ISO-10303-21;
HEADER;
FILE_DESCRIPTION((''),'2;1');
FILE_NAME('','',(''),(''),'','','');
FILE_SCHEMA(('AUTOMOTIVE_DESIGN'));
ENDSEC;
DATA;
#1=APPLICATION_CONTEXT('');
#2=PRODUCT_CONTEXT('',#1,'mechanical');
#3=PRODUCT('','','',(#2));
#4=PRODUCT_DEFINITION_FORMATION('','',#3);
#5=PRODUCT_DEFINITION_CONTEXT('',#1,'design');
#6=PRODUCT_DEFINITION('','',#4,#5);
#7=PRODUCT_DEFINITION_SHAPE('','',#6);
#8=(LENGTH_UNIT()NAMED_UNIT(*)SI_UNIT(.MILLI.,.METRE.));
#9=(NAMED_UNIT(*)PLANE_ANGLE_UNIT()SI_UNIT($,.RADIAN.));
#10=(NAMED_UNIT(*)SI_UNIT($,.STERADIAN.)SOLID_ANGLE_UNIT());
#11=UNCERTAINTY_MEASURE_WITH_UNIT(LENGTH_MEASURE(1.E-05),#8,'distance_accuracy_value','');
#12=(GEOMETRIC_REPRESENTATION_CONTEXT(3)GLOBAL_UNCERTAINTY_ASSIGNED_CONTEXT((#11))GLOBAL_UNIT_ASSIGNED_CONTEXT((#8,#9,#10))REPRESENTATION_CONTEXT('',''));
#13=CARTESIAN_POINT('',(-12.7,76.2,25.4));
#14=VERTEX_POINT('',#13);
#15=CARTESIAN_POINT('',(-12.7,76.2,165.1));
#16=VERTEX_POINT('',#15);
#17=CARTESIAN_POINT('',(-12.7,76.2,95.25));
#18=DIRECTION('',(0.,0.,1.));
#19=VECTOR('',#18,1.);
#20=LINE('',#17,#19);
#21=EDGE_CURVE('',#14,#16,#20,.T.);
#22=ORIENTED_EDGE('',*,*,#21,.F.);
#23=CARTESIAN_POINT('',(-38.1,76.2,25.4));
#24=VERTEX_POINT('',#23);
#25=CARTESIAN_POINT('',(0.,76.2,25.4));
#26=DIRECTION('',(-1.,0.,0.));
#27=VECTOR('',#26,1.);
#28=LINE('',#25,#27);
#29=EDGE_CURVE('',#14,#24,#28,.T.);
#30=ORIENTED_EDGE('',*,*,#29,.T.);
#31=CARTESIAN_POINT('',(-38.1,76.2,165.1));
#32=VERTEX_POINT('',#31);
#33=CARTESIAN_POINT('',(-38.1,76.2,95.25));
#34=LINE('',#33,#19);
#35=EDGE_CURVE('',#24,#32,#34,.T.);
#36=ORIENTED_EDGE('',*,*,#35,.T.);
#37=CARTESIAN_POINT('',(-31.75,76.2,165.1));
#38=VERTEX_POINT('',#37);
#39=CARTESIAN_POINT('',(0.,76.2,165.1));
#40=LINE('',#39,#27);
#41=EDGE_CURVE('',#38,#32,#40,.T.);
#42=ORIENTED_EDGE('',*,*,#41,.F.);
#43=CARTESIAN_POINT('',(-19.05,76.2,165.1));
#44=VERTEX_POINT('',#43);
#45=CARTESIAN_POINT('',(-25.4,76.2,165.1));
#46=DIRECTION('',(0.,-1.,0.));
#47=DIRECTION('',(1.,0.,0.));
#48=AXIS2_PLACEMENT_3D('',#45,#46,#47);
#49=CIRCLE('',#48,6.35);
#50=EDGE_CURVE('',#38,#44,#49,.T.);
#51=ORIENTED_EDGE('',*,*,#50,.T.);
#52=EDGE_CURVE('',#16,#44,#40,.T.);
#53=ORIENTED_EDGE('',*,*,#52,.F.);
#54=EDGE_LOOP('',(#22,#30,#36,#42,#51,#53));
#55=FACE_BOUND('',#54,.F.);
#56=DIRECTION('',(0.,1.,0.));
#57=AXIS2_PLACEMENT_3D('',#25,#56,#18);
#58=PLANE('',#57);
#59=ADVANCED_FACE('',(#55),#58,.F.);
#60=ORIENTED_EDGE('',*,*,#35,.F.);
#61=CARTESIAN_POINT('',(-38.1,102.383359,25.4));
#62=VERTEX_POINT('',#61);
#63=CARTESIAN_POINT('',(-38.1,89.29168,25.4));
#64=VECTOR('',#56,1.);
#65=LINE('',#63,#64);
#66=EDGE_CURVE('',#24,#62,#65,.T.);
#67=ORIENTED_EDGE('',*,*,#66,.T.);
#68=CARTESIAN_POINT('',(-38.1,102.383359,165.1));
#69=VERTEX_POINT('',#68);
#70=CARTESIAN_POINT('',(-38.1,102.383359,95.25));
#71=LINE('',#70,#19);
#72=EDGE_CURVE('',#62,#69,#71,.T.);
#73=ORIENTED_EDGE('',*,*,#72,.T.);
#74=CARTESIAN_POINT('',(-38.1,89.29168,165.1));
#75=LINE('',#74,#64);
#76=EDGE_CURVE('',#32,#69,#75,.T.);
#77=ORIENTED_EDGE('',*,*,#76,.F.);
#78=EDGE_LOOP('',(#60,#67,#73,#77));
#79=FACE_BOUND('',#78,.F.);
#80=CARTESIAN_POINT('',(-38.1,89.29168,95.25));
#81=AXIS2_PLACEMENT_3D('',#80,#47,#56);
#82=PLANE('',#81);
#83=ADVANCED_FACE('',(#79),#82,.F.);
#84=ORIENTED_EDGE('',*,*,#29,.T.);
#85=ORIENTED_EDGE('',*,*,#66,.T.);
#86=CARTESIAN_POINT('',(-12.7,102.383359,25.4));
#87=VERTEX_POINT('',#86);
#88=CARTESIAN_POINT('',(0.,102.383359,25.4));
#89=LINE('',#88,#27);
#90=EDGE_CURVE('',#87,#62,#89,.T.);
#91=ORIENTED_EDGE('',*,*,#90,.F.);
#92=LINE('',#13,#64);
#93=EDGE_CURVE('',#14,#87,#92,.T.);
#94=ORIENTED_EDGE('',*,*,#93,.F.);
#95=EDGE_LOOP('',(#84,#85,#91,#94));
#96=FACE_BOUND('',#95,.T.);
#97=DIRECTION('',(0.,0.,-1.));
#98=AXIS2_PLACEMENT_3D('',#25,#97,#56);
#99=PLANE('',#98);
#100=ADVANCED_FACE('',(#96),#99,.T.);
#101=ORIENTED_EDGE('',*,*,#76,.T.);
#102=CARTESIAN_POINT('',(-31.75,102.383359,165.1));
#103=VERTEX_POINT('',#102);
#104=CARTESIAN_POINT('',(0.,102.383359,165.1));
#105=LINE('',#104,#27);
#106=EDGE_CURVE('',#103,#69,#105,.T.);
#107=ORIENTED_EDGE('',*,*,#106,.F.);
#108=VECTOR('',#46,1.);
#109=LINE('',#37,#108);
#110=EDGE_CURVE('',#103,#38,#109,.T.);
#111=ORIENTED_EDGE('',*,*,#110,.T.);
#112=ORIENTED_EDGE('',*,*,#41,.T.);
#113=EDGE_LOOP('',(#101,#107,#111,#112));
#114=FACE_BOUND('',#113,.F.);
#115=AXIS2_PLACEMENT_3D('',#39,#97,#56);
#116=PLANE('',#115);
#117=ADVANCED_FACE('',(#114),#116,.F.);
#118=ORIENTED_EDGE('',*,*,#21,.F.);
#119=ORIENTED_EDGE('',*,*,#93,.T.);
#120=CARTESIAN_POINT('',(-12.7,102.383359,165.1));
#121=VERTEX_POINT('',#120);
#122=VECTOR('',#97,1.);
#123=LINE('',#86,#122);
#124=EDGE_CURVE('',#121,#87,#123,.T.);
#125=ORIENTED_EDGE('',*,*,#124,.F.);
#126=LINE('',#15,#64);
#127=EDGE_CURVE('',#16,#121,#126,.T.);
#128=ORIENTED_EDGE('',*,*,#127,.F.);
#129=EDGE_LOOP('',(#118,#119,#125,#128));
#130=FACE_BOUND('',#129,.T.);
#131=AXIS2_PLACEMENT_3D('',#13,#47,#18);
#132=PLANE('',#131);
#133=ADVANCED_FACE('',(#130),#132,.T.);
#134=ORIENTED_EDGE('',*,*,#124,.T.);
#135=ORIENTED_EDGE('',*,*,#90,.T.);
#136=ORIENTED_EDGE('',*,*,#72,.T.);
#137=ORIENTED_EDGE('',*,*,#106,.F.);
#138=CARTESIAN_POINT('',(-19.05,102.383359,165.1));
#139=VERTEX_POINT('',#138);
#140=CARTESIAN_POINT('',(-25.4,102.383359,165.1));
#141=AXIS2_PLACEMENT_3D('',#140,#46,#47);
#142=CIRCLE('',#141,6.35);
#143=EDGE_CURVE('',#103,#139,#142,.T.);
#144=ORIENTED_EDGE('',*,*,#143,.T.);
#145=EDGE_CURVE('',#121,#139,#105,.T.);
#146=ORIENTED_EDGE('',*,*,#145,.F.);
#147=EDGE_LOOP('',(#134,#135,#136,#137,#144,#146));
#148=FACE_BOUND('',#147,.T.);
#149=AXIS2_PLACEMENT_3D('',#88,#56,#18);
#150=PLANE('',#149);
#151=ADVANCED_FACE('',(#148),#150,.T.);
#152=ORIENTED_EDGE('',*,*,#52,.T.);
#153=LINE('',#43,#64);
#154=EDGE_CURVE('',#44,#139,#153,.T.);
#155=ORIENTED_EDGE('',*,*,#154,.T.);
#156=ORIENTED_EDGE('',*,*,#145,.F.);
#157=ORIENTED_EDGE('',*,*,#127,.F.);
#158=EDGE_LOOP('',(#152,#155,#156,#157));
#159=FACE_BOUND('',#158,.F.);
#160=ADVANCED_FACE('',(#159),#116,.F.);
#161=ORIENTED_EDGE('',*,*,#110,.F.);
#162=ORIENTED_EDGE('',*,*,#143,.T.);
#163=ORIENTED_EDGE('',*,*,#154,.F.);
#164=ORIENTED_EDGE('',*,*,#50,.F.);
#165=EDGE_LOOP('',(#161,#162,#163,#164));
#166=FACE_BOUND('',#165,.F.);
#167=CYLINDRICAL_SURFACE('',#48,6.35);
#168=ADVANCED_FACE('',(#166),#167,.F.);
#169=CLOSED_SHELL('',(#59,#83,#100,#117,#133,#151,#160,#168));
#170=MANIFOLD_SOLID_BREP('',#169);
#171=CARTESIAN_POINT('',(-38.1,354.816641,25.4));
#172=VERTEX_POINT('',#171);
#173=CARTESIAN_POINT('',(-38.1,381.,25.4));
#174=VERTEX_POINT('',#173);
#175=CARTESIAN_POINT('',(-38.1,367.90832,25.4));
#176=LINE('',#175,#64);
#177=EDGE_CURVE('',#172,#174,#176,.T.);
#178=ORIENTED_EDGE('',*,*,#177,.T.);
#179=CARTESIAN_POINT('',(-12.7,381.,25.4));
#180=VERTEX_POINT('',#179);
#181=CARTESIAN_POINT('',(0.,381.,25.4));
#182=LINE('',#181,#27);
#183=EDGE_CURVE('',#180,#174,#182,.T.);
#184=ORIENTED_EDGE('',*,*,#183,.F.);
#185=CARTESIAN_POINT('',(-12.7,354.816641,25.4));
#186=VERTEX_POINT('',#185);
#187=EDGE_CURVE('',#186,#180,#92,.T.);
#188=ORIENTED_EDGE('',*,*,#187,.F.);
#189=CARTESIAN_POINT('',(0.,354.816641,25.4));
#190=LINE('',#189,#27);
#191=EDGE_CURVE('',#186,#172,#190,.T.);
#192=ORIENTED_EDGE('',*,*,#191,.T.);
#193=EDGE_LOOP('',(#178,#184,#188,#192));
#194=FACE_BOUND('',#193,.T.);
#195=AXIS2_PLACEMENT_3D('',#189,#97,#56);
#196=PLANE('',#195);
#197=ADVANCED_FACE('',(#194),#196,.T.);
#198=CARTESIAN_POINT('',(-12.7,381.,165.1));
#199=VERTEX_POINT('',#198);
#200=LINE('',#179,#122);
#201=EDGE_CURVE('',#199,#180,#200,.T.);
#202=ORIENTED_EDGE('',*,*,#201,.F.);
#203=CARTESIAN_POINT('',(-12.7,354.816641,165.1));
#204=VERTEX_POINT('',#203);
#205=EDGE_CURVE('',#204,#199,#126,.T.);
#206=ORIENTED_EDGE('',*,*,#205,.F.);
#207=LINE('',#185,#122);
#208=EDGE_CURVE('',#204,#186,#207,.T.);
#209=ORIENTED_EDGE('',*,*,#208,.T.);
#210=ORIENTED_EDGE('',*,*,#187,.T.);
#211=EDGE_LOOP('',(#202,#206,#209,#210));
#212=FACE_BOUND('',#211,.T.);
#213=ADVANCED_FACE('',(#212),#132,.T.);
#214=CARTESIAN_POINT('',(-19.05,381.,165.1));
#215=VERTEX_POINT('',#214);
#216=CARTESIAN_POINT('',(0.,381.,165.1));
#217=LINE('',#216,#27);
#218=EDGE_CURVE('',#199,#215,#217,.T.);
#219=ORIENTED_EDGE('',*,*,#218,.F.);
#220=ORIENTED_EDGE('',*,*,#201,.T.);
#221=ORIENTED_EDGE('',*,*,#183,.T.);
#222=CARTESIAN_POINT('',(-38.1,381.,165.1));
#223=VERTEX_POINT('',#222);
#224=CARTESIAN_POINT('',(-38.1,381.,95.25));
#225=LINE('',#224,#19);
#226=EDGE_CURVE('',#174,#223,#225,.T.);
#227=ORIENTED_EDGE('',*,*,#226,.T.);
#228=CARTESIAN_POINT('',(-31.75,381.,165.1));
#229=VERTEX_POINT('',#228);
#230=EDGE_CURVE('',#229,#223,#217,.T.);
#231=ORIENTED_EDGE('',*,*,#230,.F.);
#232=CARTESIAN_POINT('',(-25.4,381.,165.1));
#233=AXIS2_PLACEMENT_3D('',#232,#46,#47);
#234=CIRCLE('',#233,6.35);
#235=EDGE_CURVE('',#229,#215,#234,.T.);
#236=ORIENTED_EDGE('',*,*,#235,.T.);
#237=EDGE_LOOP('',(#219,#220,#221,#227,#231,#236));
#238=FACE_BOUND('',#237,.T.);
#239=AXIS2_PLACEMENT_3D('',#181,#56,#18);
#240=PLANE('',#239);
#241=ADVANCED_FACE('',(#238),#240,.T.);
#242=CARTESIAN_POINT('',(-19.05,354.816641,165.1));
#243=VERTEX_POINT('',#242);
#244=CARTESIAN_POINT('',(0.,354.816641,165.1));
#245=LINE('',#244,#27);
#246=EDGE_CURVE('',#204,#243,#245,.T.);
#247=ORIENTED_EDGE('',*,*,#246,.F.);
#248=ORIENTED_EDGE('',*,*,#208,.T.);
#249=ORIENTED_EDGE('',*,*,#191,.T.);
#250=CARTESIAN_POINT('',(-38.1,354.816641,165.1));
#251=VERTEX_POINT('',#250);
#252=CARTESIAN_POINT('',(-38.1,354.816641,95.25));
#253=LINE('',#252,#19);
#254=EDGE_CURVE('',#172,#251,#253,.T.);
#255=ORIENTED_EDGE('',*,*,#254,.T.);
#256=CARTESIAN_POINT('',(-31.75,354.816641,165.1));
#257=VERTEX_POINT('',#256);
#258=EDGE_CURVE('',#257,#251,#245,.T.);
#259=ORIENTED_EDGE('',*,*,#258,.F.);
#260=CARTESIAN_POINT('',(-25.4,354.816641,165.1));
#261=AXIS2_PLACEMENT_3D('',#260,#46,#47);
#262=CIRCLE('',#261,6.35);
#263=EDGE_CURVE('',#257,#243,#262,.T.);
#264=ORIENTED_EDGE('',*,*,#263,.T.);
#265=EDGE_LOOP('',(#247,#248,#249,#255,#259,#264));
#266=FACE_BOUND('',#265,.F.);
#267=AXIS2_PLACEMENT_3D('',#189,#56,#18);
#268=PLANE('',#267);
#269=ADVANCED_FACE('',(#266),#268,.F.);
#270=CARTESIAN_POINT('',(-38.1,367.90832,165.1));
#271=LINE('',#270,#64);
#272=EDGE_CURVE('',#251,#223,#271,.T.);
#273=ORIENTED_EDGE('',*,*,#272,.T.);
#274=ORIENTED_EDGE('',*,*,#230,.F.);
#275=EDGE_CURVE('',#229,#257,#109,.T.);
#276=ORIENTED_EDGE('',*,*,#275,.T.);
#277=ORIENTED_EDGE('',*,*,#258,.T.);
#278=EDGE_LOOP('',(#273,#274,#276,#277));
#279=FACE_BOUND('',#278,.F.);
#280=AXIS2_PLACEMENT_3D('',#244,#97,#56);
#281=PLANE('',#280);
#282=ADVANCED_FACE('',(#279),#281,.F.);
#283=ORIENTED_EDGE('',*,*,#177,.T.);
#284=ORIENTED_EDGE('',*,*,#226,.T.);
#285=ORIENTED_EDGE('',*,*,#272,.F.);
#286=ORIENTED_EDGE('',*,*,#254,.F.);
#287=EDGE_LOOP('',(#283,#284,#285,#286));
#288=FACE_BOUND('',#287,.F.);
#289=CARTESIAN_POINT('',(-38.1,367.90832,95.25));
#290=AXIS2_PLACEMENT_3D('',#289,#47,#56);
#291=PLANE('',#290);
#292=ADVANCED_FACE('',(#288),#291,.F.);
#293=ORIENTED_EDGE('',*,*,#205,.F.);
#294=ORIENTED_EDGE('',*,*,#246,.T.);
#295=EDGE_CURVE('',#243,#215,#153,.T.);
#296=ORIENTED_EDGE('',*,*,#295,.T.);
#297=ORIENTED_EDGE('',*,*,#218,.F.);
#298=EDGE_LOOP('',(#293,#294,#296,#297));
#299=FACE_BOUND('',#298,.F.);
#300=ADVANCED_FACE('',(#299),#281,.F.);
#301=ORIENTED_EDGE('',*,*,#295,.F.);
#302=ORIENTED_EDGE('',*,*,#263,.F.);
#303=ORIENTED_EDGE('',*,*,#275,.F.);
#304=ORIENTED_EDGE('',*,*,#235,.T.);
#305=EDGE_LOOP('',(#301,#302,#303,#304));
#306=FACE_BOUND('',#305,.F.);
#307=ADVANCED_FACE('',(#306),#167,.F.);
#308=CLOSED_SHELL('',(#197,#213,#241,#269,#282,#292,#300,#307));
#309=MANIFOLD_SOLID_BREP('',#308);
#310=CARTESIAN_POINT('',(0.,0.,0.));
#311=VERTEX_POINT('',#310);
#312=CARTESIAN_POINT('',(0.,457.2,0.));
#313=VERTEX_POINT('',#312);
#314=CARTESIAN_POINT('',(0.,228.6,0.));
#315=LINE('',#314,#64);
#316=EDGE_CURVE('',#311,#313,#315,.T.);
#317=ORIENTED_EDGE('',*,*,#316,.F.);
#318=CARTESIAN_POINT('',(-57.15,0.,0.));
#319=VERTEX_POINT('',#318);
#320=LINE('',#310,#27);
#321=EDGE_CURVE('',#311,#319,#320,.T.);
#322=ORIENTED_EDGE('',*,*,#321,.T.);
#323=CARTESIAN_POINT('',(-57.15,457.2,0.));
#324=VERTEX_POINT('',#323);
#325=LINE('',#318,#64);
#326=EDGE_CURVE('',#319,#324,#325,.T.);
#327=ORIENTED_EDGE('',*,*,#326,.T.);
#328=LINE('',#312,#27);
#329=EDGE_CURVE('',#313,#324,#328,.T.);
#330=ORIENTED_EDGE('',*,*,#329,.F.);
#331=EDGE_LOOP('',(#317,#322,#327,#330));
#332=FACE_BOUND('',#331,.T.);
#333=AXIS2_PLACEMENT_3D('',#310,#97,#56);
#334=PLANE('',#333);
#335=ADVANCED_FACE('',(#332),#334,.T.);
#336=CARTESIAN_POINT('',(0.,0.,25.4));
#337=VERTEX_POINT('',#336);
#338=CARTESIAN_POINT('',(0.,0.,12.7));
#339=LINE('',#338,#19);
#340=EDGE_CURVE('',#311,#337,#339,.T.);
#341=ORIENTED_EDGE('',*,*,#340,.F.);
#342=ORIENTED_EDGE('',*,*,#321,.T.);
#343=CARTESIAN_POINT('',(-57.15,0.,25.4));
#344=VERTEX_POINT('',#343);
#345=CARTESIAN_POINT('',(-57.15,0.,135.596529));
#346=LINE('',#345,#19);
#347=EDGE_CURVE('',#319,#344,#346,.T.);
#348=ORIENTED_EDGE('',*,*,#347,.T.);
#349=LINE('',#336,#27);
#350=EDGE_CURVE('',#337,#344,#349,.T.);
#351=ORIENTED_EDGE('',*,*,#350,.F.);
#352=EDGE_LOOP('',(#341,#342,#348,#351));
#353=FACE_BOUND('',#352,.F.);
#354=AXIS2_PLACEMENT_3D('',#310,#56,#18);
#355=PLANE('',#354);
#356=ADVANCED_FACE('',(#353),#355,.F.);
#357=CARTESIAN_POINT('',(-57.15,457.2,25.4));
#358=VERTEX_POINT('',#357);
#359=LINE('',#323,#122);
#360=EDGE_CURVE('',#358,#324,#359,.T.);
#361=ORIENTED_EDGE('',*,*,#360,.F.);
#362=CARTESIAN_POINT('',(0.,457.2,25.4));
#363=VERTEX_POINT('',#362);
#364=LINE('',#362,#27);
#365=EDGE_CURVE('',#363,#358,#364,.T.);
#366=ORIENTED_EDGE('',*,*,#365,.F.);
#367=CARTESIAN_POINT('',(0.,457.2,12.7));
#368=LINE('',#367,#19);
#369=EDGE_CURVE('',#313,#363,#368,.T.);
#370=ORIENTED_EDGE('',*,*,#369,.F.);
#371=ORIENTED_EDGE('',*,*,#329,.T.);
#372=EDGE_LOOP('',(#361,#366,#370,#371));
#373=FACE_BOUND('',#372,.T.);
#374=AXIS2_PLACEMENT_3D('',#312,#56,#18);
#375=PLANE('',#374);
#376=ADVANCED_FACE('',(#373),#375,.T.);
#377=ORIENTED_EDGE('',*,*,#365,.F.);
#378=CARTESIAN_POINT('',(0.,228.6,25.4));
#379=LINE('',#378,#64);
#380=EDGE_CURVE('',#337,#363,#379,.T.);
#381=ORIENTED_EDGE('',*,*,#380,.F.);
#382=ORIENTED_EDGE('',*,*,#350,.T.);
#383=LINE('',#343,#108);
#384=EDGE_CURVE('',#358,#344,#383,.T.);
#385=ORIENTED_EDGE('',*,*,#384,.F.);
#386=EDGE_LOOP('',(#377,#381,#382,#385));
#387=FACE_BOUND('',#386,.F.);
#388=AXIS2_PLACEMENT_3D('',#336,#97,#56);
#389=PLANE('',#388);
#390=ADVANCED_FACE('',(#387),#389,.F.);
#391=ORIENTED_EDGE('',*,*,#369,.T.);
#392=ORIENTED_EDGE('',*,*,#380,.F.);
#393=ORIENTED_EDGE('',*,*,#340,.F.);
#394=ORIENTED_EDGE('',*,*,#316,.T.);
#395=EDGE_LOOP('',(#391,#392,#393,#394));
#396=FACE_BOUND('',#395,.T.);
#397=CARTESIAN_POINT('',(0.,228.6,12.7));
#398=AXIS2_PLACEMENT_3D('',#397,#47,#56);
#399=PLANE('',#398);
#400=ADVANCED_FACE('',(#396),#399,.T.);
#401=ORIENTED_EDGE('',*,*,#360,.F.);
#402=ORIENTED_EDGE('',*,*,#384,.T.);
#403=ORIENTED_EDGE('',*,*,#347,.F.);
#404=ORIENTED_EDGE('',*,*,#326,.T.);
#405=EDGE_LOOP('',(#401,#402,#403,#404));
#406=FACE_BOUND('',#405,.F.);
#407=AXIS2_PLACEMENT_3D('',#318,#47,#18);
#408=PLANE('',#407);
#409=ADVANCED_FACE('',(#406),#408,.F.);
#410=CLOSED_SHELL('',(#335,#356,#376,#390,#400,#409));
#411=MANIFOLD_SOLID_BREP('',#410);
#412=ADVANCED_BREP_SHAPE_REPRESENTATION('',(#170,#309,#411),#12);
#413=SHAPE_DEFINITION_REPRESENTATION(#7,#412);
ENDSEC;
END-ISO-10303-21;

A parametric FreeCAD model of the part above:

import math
import FreeCAD as App
import Part
import Sketcher
Q = App.Units.Quantity

doc = App.newDocument("Part")
params = doc.addObject("Spreadsheet::Sheet", "Params")
for row, (alias, value) in enumerate([
    ("sketch1_width", "18 in"),
    ("sketch1_height", "1 in"),
    ("pad1_length", "8 in"),
    ("sketch2_height", "6 in"),
    ("sketch2_width", "1.25 in"),
    ("pad2_length", "1.5 in"),
    ("pad3_length", "7.75 in"),
    ("pad3_length2", "0.25 in"),
    ("sketch4_width", "5 in"),
    ("sketch4_height", "2 in"),
    ("pocket1_length", "2 in"),
    ("sketch5_diameter", "1.75 in"),
    ("pocket2_length", "0.5 in"),
    ("pocket2_length2", "5.5 in"),
    ("sketch6_diameter", "1.5 in"),
    ("pocket3_length", "0.25 in"),
    ("sketch7_diameter", "1.5 in"),
    ("pocket4_length", "0.25 in"),
    ("sketch8_height", "5.5 in"),
    ("pad4_length", "1.5 in"),
    ("sketch9_height", "5.5 in"),
    ("pad5_length", "1.5 in"),
    ("sketch10_width", "0.5 in"),
    ("sketch10_height", "5.5 in"),
    ("pad6_length", "381.001 mm"),
    ("sketch11_diameter", "1 in"),
    ("pad7_length", "7.5 in"),
    ("pad7_length2", "1.5 in"),
    ("sketch12_height", "4 in"),
    ("sketch12_radius", "0.75 in"),
    ("sketch12_length", "4 in"),
    ("sketch12_width", "0.5 in"),
    ("sketch12_length2", "0.5 in"),
    ("pad8_length", "4.5 in"),
    ("sketch13_height", "3 in"),
    ("sketch13_height2", "3.5 in"),
    ("pad9_length", "8.25 in"),
    ("sketch14_height", "2 in"),
    ("sketch14_width", "0.375 in"),
    ("pocket5_length", "8.25 in"),
    ("sketch15_height", "0.5 in"),
    ("sketch15_height2", "1.5 in"),
    ("sketch15_length", "0.5000002 in"),
    ("sketch15_width", "0.375 in"),
    ("pocket6_length", "0.5 in"),
    ("pocket6_length2", "2.5 in"),
    ("sketch16_diameter", "0.5 in"),
    ("pad10_length", "16 in"),
    ("sketch17_width", "7 in"),
    ("pad11_length", "457.201 mm"),
], start=1):
    params.set(f"A{row}", alias)
    params.set(f"B{row}", "=" + value)
    params.setAlias(f"B{row}", alias)

body = doc.addObject("PartDesign::Body", "Body")

sketch1 = body.newObject("Sketcher::SketchObject", "Sketch")
sketch1.AttachmentSupport = (doc.getObject("YZ_Plane"), [""])
sketch1.MapMode = "FlatFace"
sketch1.addGeometry(Part.LineSegment(App.Vector(0, 25, 0), App.Vector(0, 0, 0)), False)
sketch1.addGeometry(Part.LineSegment(App.Vector(0, 0, 0), App.Vector(457, 0, 0)), False)
sketch1.addGeometry(Part.LineSegment(App.Vector(457, 0, 0), App.Vector(457, 25, 0)), False)
sketch1.addGeometry(Part.LineSegment(App.Vector(457, 25, 0), App.Vector(0, 25, 0)), False)
sketch1.addConstraint(Sketcher.Constraint("Coincident", 0, 2, 1, 1))
sketch1.addConstraint(Sketcher.Constraint("Coincident", 1, 2, 2, 1))
sketch1.addConstraint(Sketcher.Constraint("Coincident", 2, 2, 3, 1))
sketch1.addConstraint(Sketcher.Constraint("Coincident", 3, 2, 0, 1))
sketch1.addConstraint(Sketcher.Constraint("Vertical", 0))
sketch1.addConstraint(Sketcher.Constraint("Horizontal", 1))
sketch1.addConstraint(Sketcher.Constraint("Vertical", 2))
sketch1.addConstraint(Sketcher.Constraint("Horizontal", 3))
sketch1.addConstraint(Sketcher.Constraint("Coincident", 0, 2, -1, 1))
sketch1.addConstraint(Sketcher.Constraint("DistanceX", 1, 1, 1, 2, Q("18 in")))
sketch1.addConstraint(Sketcher.Constraint("DistanceY", 0, 2, 0, 1, Q("1 in")))
sketch1.setExpression("Constraints[9]", "Params.sketch1_width")
sketch1.setExpression("Constraints[10]", "Params.sketch1_height")
pad1 = body.newObject("PartDesign::Pad", "Pad")
pad1.Profile = sketch1
pad1.setExpression("Length", "Params.pad1_length")
pad1.Reversed = True

sketch2 = body.newObject("Sketcher::SketchObject", "Sketch001")
sketch2.AttachmentSupport = (doc.getObject("YZ_Plane"), [""])
sketch2.MapMode = "FlatFace"
sketch2.AttachmentOffset = App.Placement(App.Vector(0, 0, -8 * 25.4), App.Rotation())
sketch2.addGeometry(Part.LineSegment(App.Vector(331, 178, 0), App.Vector(331, 25, 0)), False)
sketch2.addGeometry(Part.LineSegment(App.Vector(331, 25, 0), App.Vector(300, 25, 0)), False)
sketch2.addGeometry(Part.LineSegment(App.Vector(300, 25, 0), App.Vector(300, 178, 0)), False)
sketch2.addGeometry(Part.LineSegment(App.Vector(300, 178, 0), App.Vector(331, 178, 0)), False)
sketch2.addGeometry(Part.LineSegment(App.Vector(173, 178, 0), App.Vector(173, 25, 0)), False)
sketch2.addGeometry(Part.LineSegment(App.Vector(173, 25, 0), App.Vector(141, 25, 0)), False)
sketch2.addGeometry(Part.LineSegment(App.Vector(141, 25, 0), App.Vector(141, 178, 0)), False)
sketch2.addGeometry(Part.LineSegment(App.Vector(141, 178, 0), App.Vector(173, 178, 0)), False)
sketch2.addConstraint(Sketcher.Constraint("Coincident", 0, 2, 1, 1))
sketch2.addConstraint(Sketcher.Constraint("Coincident", 1, 2, 2, 1))
sketch2.addConstraint(Sketcher.Constraint("Coincident", 2, 2, 3, 1))
sketch2.addConstraint(Sketcher.Constraint("Coincident", 3, 2, 0, 1))
sketch2.addConstraint(Sketcher.Constraint("Coincident", 4, 2, 5, 1))
sketch2.addConstraint(Sketcher.Constraint("Coincident", 5, 2, 6, 1))
sketch2.addConstraint(Sketcher.Constraint("Coincident", 6, 2, 7, 1))
sketch2.addConstraint(Sketcher.Constraint("Coincident", 7, 2, 4, 1))
sketch2.addConstraint(Sketcher.Constraint("Vertical", 0))
sketch2.addConstraint(Sketcher.Constraint("Horizontal", 1))
sketch2.addConstraint(Sketcher.Constraint("Vertical", 2))
sketch2.addConstraint(Sketcher.Constraint("Horizontal", 3))
sketch2.addConstraint(Sketcher.Constraint("Vertical", 4))
sketch2.addConstraint(Sketcher.Constraint("Horizontal", 5))
sketch2.addConstraint(Sketcher.Constraint("Vertical", 6))
sketch2.addConstraint(Sketcher.Constraint("Horizontal", 7))
sketch2.addConstraint(Sketcher.Constraint("Horizontal", 1, 2, 4, 2))
sketch2.addConstraint(Sketcher.Constraint("Horizontal", 3, 2, 6, 2))
sketch2.addConstraint(Sketcher.Constraint("Equal", 3, 5))
sketch2.addConstraint(Sketcher.Constraint("DistanceY", 0, 2, 0, 1, Q("6 in")))
sketch2.addConstraint(Sketcher.Constraint("DistanceY", -1, 1, 0, 2, Q("1 in")))
sketch2.addConstraint(Sketcher.Constraint("DistanceX", 4, 2, 1, 2, Q("5 in")))
sketch2.addConstraint(Sketcher.Constraint("DistanceX", 1, 2, 1, 1, Q("1.25 in")))
sketch2.addConstraint(Sketcher.Constraint("DistanceX", -1, 1, 0, 2, 331.329972))
sketch2.setExpression("Constraints[19]", "Params.sketch2_height")
sketch2.setExpression("Constraints[22]", "Params.sketch2_width")
pad2 = body.newObject("PartDesign::Pad", "Pad001")
pad2.Profile = sketch2
pad2.setExpression("Length", "Params.pad2_length")

sketch3 = body.newObject("Sketcher::SketchObject", "Sketch002")
sketch3.AttachmentSupport = (doc.getObject("XZ_Plane"), [""])
sketch3.MapMode = "FlatFace"
sketch3.AttachmentOffset = App.Placement(App.Vector(0, 0, -331.329972), App.Rotation())
sketch3.addGeometry(Part.LineSegment(App.Vector(-199, 190, 0), App.Vector(-169, 190, 0)), False)
sketch3.addGeometry(Part.LineSegment(App.Vector(-169, 190, 0), App.Vector(-155, 165, 0)), False)
sketch3.addGeometry(Part.LineSegment(App.Vector(-155, 165, 0), App.Vector(-169, 140, 0)), False)
sketch3.addGeometry(Part.LineSegment(App.Vector(-169, 140, 0), App.Vector(-199, 140, 0)), False)
sketch3.addGeometry(Part.LineSegment(App.Vector(-199, 140, 0), App.Vector(-213, 165, 0)), False)
sketch3.addGeometry(Part.LineSegment(App.Vector(-213, 165, 0), App.Vector(-199, 190, 0)), False)
sketch3.addConstraint(Sketcher.Constraint("Coincident", 0, 2, 1, 1))
sketch3.addConstraint(Sketcher.Constraint("Coincident", 1, 2, 2, 1))
sketch3.addConstraint(Sketcher.Constraint("Coincident", 2, 2, 3, 1))
sketch3.addConstraint(Sketcher.Constraint("Coincident", 3, 2, 4, 1))
sketch3.addConstraint(Sketcher.Constraint("Coincident", 4, 2, 5, 1))
sketch3.addConstraint(Sketcher.Constraint("Coincident", 5, 2, 0, 1))
sketch3.addConstraint(Sketcher.Constraint("Horizontal", 0))
sketch3.addConstraint(Sketcher.Constraint("Horizontal", 3))
sketch3.addConstraint(Sketcher.Constraint("Parallel", 1, 4))
sketch3.addConstraint(Sketcher.Constraint("Parallel", 2, 5))
sketch3.addConstraint(Sketcher.Constraint("Horizontal", 1, 2, 4, 2))
sketch3.addConstraint(Sketcher.Constraint("Vertical", 0, 2, 2, 2))
sketch3.addConstraint(Sketcher.Constraint("Vertical", 3, 2, 5, 2))
sketch3.addConstraint(Sketcher.Constraint("Angle", 1, Q("-60 deg")))
sketch3.addConstraint(Sketcher.Constraint("DistanceY", 1, 2, 0, 2, Q("1 in")))
sketch3.addConstraint(Sketcher.Constraint("DistanceY", -1, 1, 0, 2, Q("7.5 in")))
sketch3.addConstraint(Sketcher.Constraint("DistanceX", 0, 1, 0, 2, 29.329394))
sketch3.addConstraint(Sketcher.Constraint("DistanceX", 0, 2, -1, 1, 169.485303))
pad3 = body.newObject("PartDesign::Pad", "Pad002")
pad3.Profile = sketch3
pad3.Type = "TwoLengths"
pad3.setExpression("Length", "Params.pad3_length")
pad3.setExpression("Length2", "Params.pad3_length2")

sketch4 = body.newObject("Sketcher::SketchObject", "Sketch003")
sketch4.AttachmentSupport = (doc.getObject("YZ_Plane"), [""])
sketch4.MapMode = "FlatFace"
sketch4.AttachmentOffset = App.Placement(App.Vector(0, 0, -8 * 25.4), App.Rotation())
sketch4.addGeometry(Part.LineSegment(App.Vector(300, 190, 0), App.Vector(300, 140, 0)), False)
sketch4.addGeometry(Part.LineSegment(App.Vector(300, 140, 0), App.Vector(173, 140, 0)), False)
sketch4.addGeometry(Part.LineSegment(App.Vector(173, 140, 0), App.Vector(174, 190, 0)), False)
sketch4.addGeometry(Part.LineSegment(App.Vector(174, 190, 0), App.Vector(300, 190, 0)), False)
sketch4.addConstraint(Sketcher.Constraint("Coincident", 0, 2, 1, 1))
sketch4.addConstraint(Sketcher.Constraint("Coincident", 1, 2, 2, 1))
sketch4.addConstraint(Sketcher.Constraint("Coincident", 2, 2, 3, 1))
sketch4.addConstraint(Sketcher.Constraint("Coincident", 3, 2, 0, 1))
sketch4.addConstraint(Sketcher.Constraint("Vertical", 0))
sketch4.addConstraint(Sketcher.Constraint("Horizontal", 1))
sketch4.addConstraint(Sketcher.Constraint("Horizontal", 3))
sketch4.addConstraint(Sketcher.Constraint("DistanceX", 1, 2, 1, 1, Q("5 in")))
sketch4.addConstraint(Sketcher.Constraint("DistanceY", 0, 2, 0, 1, Q("2 in")))
sketch4.addConstraint(Sketcher.Constraint("DistanceY", -1, 1, 0, 2, Q("5.5 in")))
sketch4.addConstraint(Sketcher.Constraint("DistanceX", 3, 1, 3, 2, 125.894302))
sketch4.addConstraint(Sketcher.Constraint("DistanceX", -1, 1, 0, 2, 299.579972))
sketch4.setExpression("Constraints[7]", "Params.sketch4_width")
sketch4.setExpression("Constraints[8]", "Params.sketch4_height")
pocket1 = body.newObject("PartDesign::Pocket", "Pocket")
pocket1.Profile = sketch4
pocket1.setExpression("Length", "Params.pocket1_length")
pocket1.Reversed = True

sketch5 = body.newObject("Sketcher::SketchObject", "Sketch004")
sketch5.AttachmentSupport = (doc.getObject("XZ_Plane"), [""])
sketch5.MapMode = "FlatFace"
sketch5.AttachmentOffset = App.Placement(App.Vector(0, 0, -299.579972), App.Rotation())
sketch5.addGeometry(Part.Circle(App.Vector(-184, 165, 0), App.Vector(0, 0, 1), 22), False)
sketch5.addConstraint(Sketcher.Constraint("Diameter", 0, Q("1.75 in")))
sketch5.addConstraint(Sketcher.Constraint("DistanceY", -1, 1, 0, 3, Q("6.5 in")))
sketch5.addConstraint(Sketcher.Constraint("DistanceX", 0, 3, -1, 1, Q("7.25 in")))
sketch5.setExpression("Constraints[0]", "Params.sketch5_diameter")
pocket2 = body.newObject("PartDesign::Pocket", "Pocket001")
pocket2.Profile = sketch5
pocket2.Type = "TwoLengths"
pocket2.setExpression("Length", "Params.pocket2_length")
pocket2.setExpression("Length2", "Params.pocket2_length2")

sketch6 = body.newObject("Sketcher::SketchObject", "Sketch005")
sketch6.AttachmentSupport = (doc.getObject("XZ_Plane"), [""])
sketch6.MapMode = "FlatFace"
sketch6.AttachmentOffset = App.Placement(App.Vector(0, 0, -134.479972), App.Rotation())
sketch6.addGeometry(Part.Circle(App.Vector(-184, 165, 0), App.Vector(0, 0, 1), 19), False)
sketch6.addConstraint(Sketcher.Constraint("Diameter", 0, Q("1.5 in")))
sketch6.addConstraint(Sketcher.Constraint("DistanceY", -1, 1, 0, 3, Q("6.5 in")))
sketch6.addConstraint(Sketcher.Constraint("DistanceX", 0, 3, -1, 1, Q("7.25 in")))
sketch6.setExpression("Constraints[0]", "Params.sketch6_diameter")
pocket3 = body.newObject("PartDesign::Pocket", "Pocket002")
pocket3.Profile = sketch6
pocket3.setExpression("Length", "Params.pocket3_length")

sketch7 = body.newObject("Sketcher::SketchObject", "Sketch006")
sketch7.AttachmentSupport = (doc.getObject("XZ_Plane"), [""])
sketch7.MapMode = "FlatFace"
sketch7.AttachmentOffset = App.Placement(App.Vector(0, 0, -337.679972), App.Rotation())
sketch7.addGeometry(Part.Circle(App.Vector(-184, 165, 0), App.Vector(0, 0, 1), 19), False)
sketch7.addConstraint(Sketcher.Constraint("Diameter", 0, Q("1.5 in")))
sketch7.addConstraint(Sketcher.Constraint("DistanceY", -1, 1, 0, 3, Q("6.5 in")))
sketch7.addConstraint(Sketcher.Constraint("DistanceX", 0, 3, -1, 1, Q("7.25 in")))
sketch7.setExpression("Constraints[0]", "Params.sketch7_diameter")
pocket4 = body.newObject("PartDesign::Pocket", "Pocket003")
pocket4.Profile = sketch7
pocket4.setExpression("Length", "Params.pocket4_length")
pocket4.Reversed = True
body2 = doc.addObject("PartDesign::Body", "Body001")

sketch8 = body2.newObject("Sketcher::SketchObject", "Sketch007")
sketch8.AttachmentSupport = (doc.getObject("YZ_Plane001"), [""])
sketch8.MapMode = "FlatFace"
sketch8.addGeometry(Part.LineSegment(App.Vector(76, 165, 0), App.Vector(76, 25, 0)), False)
sketch8.addGeometry(Part.LineSegment(App.Vector(76, 25, 0), App.Vector(102, 25, 0)), False)
sketch8.addGeometry(Part.LineSegment(App.Vector(102, 25, 0), App.Vector(102, 165, 0)), False)
sketch8.addGeometry(Part.LineSegment(App.Vector(102, 165, 0), App.Vector(76, 165, 0)), False)
sketch8.addConstraint(Sketcher.Constraint("Coincident", 0, 2, 1, 1))
sketch8.addConstraint(Sketcher.Constraint("Coincident", 1, 2, 2, 1))
sketch8.addConstraint(Sketcher.Constraint("Coincident", 2, 2, 3, 1))
sketch8.addConstraint(Sketcher.Constraint("Coincident", 3, 2, 0, 1))
sketch8.addConstraint(Sketcher.Constraint("Vertical", 0))
sketch8.addConstraint(Sketcher.Constraint("Horizontal", 1))
sketch8.addConstraint(Sketcher.Constraint("Vertical", 2))
sketch8.addConstraint(Sketcher.Constraint("Horizontal", 3))
sketch8.addConstraint(Sketcher.Constraint("DistanceY", 0, 2, 0, 1, Q("5.5 in")))
sketch8.addConstraint(Sketcher.Constraint("DistanceX", -1, 1, 0, 2, Q("3 in")))
sketch8.addConstraint(Sketcher.Constraint("DistanceY", -1, 1, 0, 2, Q("1 in")))
sketch8.addConstraint(Sketcher.Constraint("DistanceX", 1, 1, 1, 2, 26.183359))
sketch8.setExpression("Constraints[8]", "Params.sketch8_height")
pad4 = body2.newObject("PartDesign::Pad", "Pad003")
pad4.Profile = sketch8
pad4.setExpression("Length", "Params.pad4_length")
pad4.Reversed = True
body3 = doc.addObject("PartDesign::Body", "Body002")

sketch9 = body3.newObject("Sketcher::SketchObject", "Sketch008")
sketch9.AttachmentSupport = (doc.getObject("YZ_Plane002"), [""])
sketch9.MapMode = "FlatFace"
sketch9.addGeometry(Part.LineSegment(App.Vector(355, 165, 0), App.Vector(355, 25, 0)), False)
sketch9.addGeometry(Part.LineSegment(App.Vector(355, 25, 0), App.Vector(381, 25, 0)), False)
sketch9.addGeometry(Part.LineSegment(App.Vector(381, 25, 0), App.Vector(381, 165, 0)), False)
sketch9.addGeometry(Part.LineSegment(App.Vector(381, 165, 0), App.Vector(355, 165, 0)), False)
sketch9.addConstraint(Sketcher.Constraint("Coincident", 0, 2, 1, 1))
sketch9.addConstraint(Sketcher.Constraint("Coincident", 1, 2, 2, 1))
sketch9.addConstraint(Sketcher.Constraint("Coincident", 2, 2, 3, 1))
sketch9.addConstraint(Sketcher.Constraint("Coincident", 3, 2, 0, 1))
sketch9.addConstraint(Sketcher.Constraint("Vertical", 0))
sketch9.addConstraint(Sketcher.Constraint("Horizontal", 1))
sketch9.addConstraint(Sketcher.Constraint("Vertical", 2))
sketch9.addConstraint(Sketcher.Constraint("Horizontal", 3))
sketch9.addConstraint(Sketcher.Constraint("DistanceY", 0, 2, 0, 1, Q("5.5 in")))
sketch9.addConstraint(Sketcher.Constraint("DistanceY", -1, 1, 0, 2, Q("1 in")))
sketch9.addConstraint(Sketcher.Constraint("DistanceX", -1, 1, 1, 2, Q("15 in")))
sketch9.addConstraint(Sketcher.Constraint("DistanceX", 1, 1, 1, 2, 26.183359))
sketch9.setExpression("Constraints[8]", "Params.sketch9_height")
pad5 = body3.newObject("PartDesign::Pad", "Pad004")
pad5.Profile = sketch9
pad5.setExpression("Length", "Params.pad5_length")
pad5.Reversed = True
body4 = doc.addObject("PartDesign::Body", "Body003")

sketch10 = body4.newObject("Sketcher::SketchObject", "Sketch009")
sketch10.AttachmentSupport = (doc.getObject("XZ_Plane003"), [""])
sketch10.MapMode = "FlatFace"
sketch10.AttachmentOffset = App.Placement(App.Vector(0, 0, -3 * 25.4), App.Rotation())
sketch10.addGeometry(Part.LineSegment(App.Vector(-13, 165, 0), App.Vector(-13, 25, 0)), False)
sketch10.addGeometry(Part.LineSegment(App.Vector(-13, 25, 0), App.Vector(0, 25, 0)), False)
sketch10.addGeometry(Part.LineSegment(App.Vector(0, 25, 0), App.Vector(0, 165, 0)), False)
sketch10.addGeometry(Part.LineSegment(App.Vector(0, 165, 0), App.Vector(-13, 165, 0)), False)
sketch10.addConstraint(Sketcher.Constraint("Coincident", 0, 2, 1, 1))
sketch10.addConstraint(Sketcher.Constraint("Coincident", 1, 2, 2, 1))
sketch10.addConstraint(Sketcher.Constraint("Coincident", 2, 2, 3, 1))
sketch10.addConstraint(Sketcher.Constraint("Coincident", 3, 2, 0, 1))
sketch10.addConstraint(Sketcher.Constraint("Vertical", 0))
sketch10.addConstraint(Sketcher.Constraint("Horizontal", 1))
sketch10.addConstraint(Sketcher.Constraint("Vertical", 2))
sketch10.addConstraint(Sketcher.Constraint("Horizontal", 3))
sketch10.addConstraint(Sketcher.Constraint("PointOnObject", 1, 2, -2))
sketch10.addConstraint(Sketcher.Constraint("DistanceX", 1, 1, 1, 2, Q("0.5 in")))
sketch10.addConstraint(Sketcher.Constraint("DistanceY", 0, 2, 0, 1, Q("5.5 in")))
sketch10.addConstraint(Sketcher.Constraint("DistanceY", -1, 1, 0, 2, Q("1 in")))
sketch10.setExpression("Constraints[9]", "Params.sketch10_width")
sketch10.setExpression("Constraints[10]", "Params.sketch10_height")
pad6 = body4.newObject("PartDesign::Pad", "Pad005")
pad6.Profile = sketch10
pad6.setExpression("Length", "Params.pad6_length")
pad6.Reversed = True
doc.recompute()

body5 = doc.addObject("PartDesign::Body", "Body004")
body5.BaseFeature = body4
boolean = body2.newObject("PartDesign::Boolean", "Boolean")
boolean.Type = "Cut"
boolean.addObjects([body5])
doc.recompute()

boolean2 = body3.newObject("PartDesign::Boolean", "Boolean001")
boolean2.Type = "Cut"
boolean2.addObjects([body4])
body6 = doc.addObject("PartDesign::Body", "Body005")

sketch11 = body6.newObject("Sketcher::SketchObject", "Sketch010")
sketch11.AttachmentSupport = (doc.getObject("XZ_Plane005"), [""])
sketch11.MapMode = "FlatFace"
sketch11.AttachmentOffset = App.Placement(App.Vector(0, 0, -159.879972), App.Rotation())
sketch11.addGeometry(Part.Circle(App.Vector(-184, 165, 0), App.Vector(0, 0, 1), 13), False)
sketch11.addConstraint(Sketcher.Constraint("Diameter", 0, Q("1 in")))
sketch11.addConstraint(Sketcher.Constraint("DistanceY", -1, 1, 0, 3, Q("6.5 in")))
sketch11.addConstraint(Sketcher.Constraint("DistanceX", 0, 3, -1, 1, Q("7.25 in")))
sketch11.setExpression("Constraints[0]", "Params.sketch11_diameter")
pad7 = body6.newObject("PartDesign::Pad", "Pad006")
pad7.Profile = sketch11
pad7.Type = "TwoLengths"
pad7.setExpression("Length", "Params.pad7_length")
pad7.setExpression("Length2", "Params.pad7_length2")
pad7.Reversed = True
body7 = doc.addObject("PartDesign::Body", "Body006")

sketch12 = body7.newObject("Sketcher::SketchObject", "Sketch011")
sketch12.AttachmentSupport = (doc.getObject("XZ_Plane006"), [""])
sketch12.MapMode = "FlatFace"
sketch12.AttachmentOffset = App.Placement(App.Vector(0, 0, -293.229972), App.Rotation())
sketch12.addGeometry(Part.ArcOfCircle(Part.Circle(App.Vector(-184, 165, 0), App.Vector(0, 0, 1), 19), math.radians(90), math.radians(270)), False)
sketch12.addGeometry(Part.LineSegment(App.Vector(-184, 146, 0), App.Vector(-75, 63, 0)), False)
sketch12.addGeometry(Part.LineSegment(App.Vector(-75, 63, 0), App.Vector(-63, 63, 0)), False)
sketch12.addGeometry(Part.LineSegment(App.Vector(-63, 63, 0), App.Vector(-63, 165, 0)), False)
sketch12.addGeometry(Part.LineSegment(App.Vector(-63, 165, 0), App.Vector(-63, 267, 0)), False)
sketch12.addGeometry(Part.LineSegment(App.Vector(-63, 267, 0), App.Vector(-75, 267, 0)), False)
sketch12.addGeometry(Part.LineSegment(App.Vector(-75, 267, 0), App.Vector(-184, 184, 0)), False)
sketch12.addConstraint(Sketcher.Constraint("Coincident", 0, 2, 1, 1))
sketch12.addConstraint(Sketcher.Constraint("Coincident", 1, 2, 2, 1))
sketch12.addConstraint(Sketcher.Constraint("Coincident", 2, 2, 3, 1))
sketch12.addConstraint(Sketcher.Constraint("Coincident", 3, 2, 4, 1))
sketch12.addConstraint(Sketcher.Constraint("Coincident", 4, 2, 5, 1))
sketch12.addConstraint(Sketcher.Constraint("Coincident", 5, 2, 6, 1))
sketch12.addConstraint(Sketcher.Constraint("Coincident", 6, 2, 0, 1))
sketch12.addConstraint(Sketcher.Constraint("Vertical", 4))
sketch12.addConstraint(Sketcher.Constraint("Horizontal", 5))
sketch12.addConstraint(Sketcher.Constraint("Perpendicular", 2, 3))
sketch12.addConstraint(Sketcher.Constraint("Vertical", 0, 3, 6, 2))
sketch12.addConstraint(Sketcher.Constraint("Equal", 1, 6))
sketch12.addConstraint(Sketcher.Constraint("DistanceY", 4, 1, 4, 2, Q("4 in")))
sketch12.addConstraint(Sketcher.Constraint("Radius", 0, Q("0.75 in")))
sketch12.addConstraint(Sketcher.Constraint("Distance", 3, Q("4 in")))
sketch12.addConstraint(Sketcher.Constraint("DistanceX", 5, 2, 5, 1, Q("0.5 in")))
sketch12.addConstraint(Sketcher.Constraint("Distance", 2, Q("0.5 in")))
sketch12.addConstraint(Sketcher.Constraint("DistanceY", -1, 1, 0, 3, Q("6.5 in")))
sketch12.addConstraint(Sketcher.Constraint("DistanceX", 0, 3, -1, 1, Q("7.25 in")))
sketch12.addConstraint(Sketcher.Constraint("DistanceX", 0, 2, -1, 1, 184.166322))
sketch12.addConstraint(Sketcher.Constraint("DistanceX", 2, 2, -1, 1, 62.706489))
sketch12.addConstraint(Sketcher.Constraint("DistanceX", 3, 2, -1, 1, 62.619439))
sketch12.setExpression("Constraints[12]", "Params.sketch12_height")
sketch12.setExpression("Constraints[13]", "Params.sketch12_radius")
sketch12.setExpression("Constraints[14]", "Params.sketch12_length")
sketch12.setExpression("Constraints[15]", "Params.sketch12_width")
sketch12.setExpression("Constraints[16]", "Params.sketch12_length2")
pad8 = body7.newObject("PartDesign::Pad", "Pad007")
pad8.Profile = sketch12
pad8.setExpression("Length", "Params.pad8_length")
body8 = doc.addObject("PartDesign::Body", "Body007")

sketch13 = body8.newObject("Sketcher::SketchObject", "Sketch012")
sketch13.AttachmentSupport = (doc.getObject("XY_Plane007"), [""])
sketch13.MapMode = "FlatFace"
sketch13.AttachmentOffset = App.Placement(App.Vector(0, 0, 266.647937), App.Rotation())
sketch13.addGeometry(Part.LineSegment(App.Vector(-72, 198, 0), App.Vector(-72, 274, 0)), False)
sketch13.addGeometry(Part.LineSegment(App.Vector(-72, 274, 0), App.Vector(-177, 281, 0)), False)
sketch13.addGeometry(Part.LineSegment(App.Vector(-177, 281, 0), App.Vector(-177, 192, 0)), False)
sketch13.addGeometry(Part.LineSegment(App.Vector(-177, 192, 0), App.Vector(-72, 198, 0)), False)
sketch13.addConstraint(Sketcher.Constraint("Coincident", 0, 2, 1, 1))
sketch13.addConstraint(Sketcher.Constraint("Coincident", 1, 2, 2, 1))
sketch13.addConstraint(Sketcher.Constraint("Coincident", 2, 2, 3, 1))
sketch13.addConstraint(Sketcher.Constraint("Coincident", 3, 2, 0, 1))
sketch13.addConstraint(Sketcher.Constraint("Vertical", 0))
sketch13.addConstraint(Sketcher.Constraint("Vertical", 2))
sketch13.addConstraint(Sketcher.Constraint("Equal", 1, 3))
sketch13.addConstraint(Sketcher.Constraint("DistanceY", 0, 1, 0, 2, Q("3 in")))
sketch13.addConstraint(Sketcher.Constraint("DistanceY", 2, 2, 2, 1, Q("3.5 in")))
sketch13.addConstraint(Sketcher.Constraint("Distance", 1, 104.885731))
sketch13.addConstraint(Sketcher.Constraint("DistanceX", 0, 2, -1, 1, 72.144439))
sketch13.addConstraint(Sketcher.Constraint("DistanceY", -1, 1, 0, 2, 274.179972))
sketch13.setExpression("Constraints[7]", "Params.sketch13_height")
sketch13.setExpression("Constraints[8]", "Params.sketch13_height2")
pad9 = body8.newObject("PartDesign::Pad", "Pad008")
pad9.Profile = sketch13
pad9.setExpression("Length", "Params.pad9_length")
pad9.Reversed = True
doc.recompute()

body9 = doc.addObject("PartDesign::Body", "Body008")
body9.BaseFeature = body8
boolean3 = body6.newObject("PartDesign::Boolean", "Boolean002")
boolean3.Type = "Cut"
boolean3.addObjects([body9])
doc.recompute()

boolean4 = body7.newObject("PartDesign::Boolean", "Boolean003")
boolean4.Type = "Cut"
boolean4.addObjects([body8])

sketch14 = body7.newObject("Sketcher::SketchObject", "Sketch013")
sketch14.AttachmentSupport = (doc.getObject("XY_Plane006"), [""])
sketch14.MapMode = "FlatFace"
sketch14.AttachmentOffset = App.Placement(App.Vector(0, 0, 266.647937), App.Rotation())
sketch14.addGeometry(Part.LineSegment(App.Vector(-72, 261, 0), App.Vector(-72, 211, 0)), False)
sketch14.addGeometry(Part.LineSegment(App.Vector(-72, 211, 0), App.Vector(-63, 211, 0)), False)
sketch14.addGeometry(Part.LineSegment(App.Vector(-63, 211, 0), App.Vector(-63, 261, 0)), False)
sketch14.addGeometry(Part.LineSegment(App.Vector(-63, 261, 0), App.Vector(-72, 261, 0)), False)
sketch14.addConstraint(Sketcher.Constraint("Coincident", 0, 2, 1, 1))
sketch14.addConstraint(Sketcher.Constraint("Coincident", 1, 2, 2, 1))
sketch14.addConstraint(Sketcher.Constraint("Coincident", 2, 2, 3, 1))
sketch14.addConstraint(Sketcher.Constraint("Coincident", 3, 2, 0, 1))
sketch14.addConstraint(Sketcher.Constraint("Vertical", 0))
sketch14.addConstraint(Sketcher.Constraint("Horizontal", 1))
sketch14.addConstraint(Sketcher.Constraint("Vertical", 2))
sketch14.addConstraint(Sketcher.Constraint("Horizontal", 3))
sketch14.addConstraint(Sketcher.Constraint("DistanceY", 0, 2, 0, 1, Q("2 in")))
sketch14.addConstraint(Sketcher.Constraint("DistanceX", 1, 1, 1, 2, Q("0.375 in")))
sketch14.addConstraint(Sketcher.Constraint("DistanceX", 0, 2, -1, 1, 72.144439))
sketch14.addConstraint(Sketcher.Constraint("DistanceY", -1, 1, 0, 2, 210.679972))
sketch14.setExpression("Constraints[8]", "Params.sketch14_height")
sketch14.setExpression("Constraints[9]", "Params.sketch14_width")
pocket5 = body7.newObject("PartDesign::Pocket", "Pocket004")
pocket5.Profile = sketch14
pocket5.setExpression("Length", "Params.pocket5_length")

sketch15 = body7.newObject("Sketcher::SketchObject", "Sketch014")
sketch15.AttachmentSupport = (doc.getObject("XZ_Plane006"), [""])
sketch15.MapMode = "FlatFace"
sketch15.AttachmentOffset = App.Placement(App.Vector(0, 0, -261.479972), App.Rotation())
sketch15.addGeometry(Part.LineSegment(App.Vector(-72, 241, 0), App.Vector(-72, 229, 0)), False)
sketch15.addGeometry(Part.LineSegment(App.Vector(-72, 229, 0), App.Vector(-63, 236, 0)), False)
sketch15.addGeometry(Part.LineSegment(App.Vector(-63, 236, 0), App.Vector(-63, 248, 0)), False)
sketch15.addGeometry(Part.LineSegment(App.Vector(-63, 248, 0), App.Vector(-72, 241, 0)), False)
sketch15.addGeometry(Part.LineSegment(App.Vector(-63, 94, 0), App.Vector(-72, 102, 0)), False)
sketch15.addGeometry(Part.LineSegment(App.Vector(-72, 102, 0), App.Vector(-72, 89, 0)), False)
sketch15.addGeometry(Part.LineSegment(App.Vector(-72, 89, 0), App.Vector(-63, 82, 0)), False)
sketch15.addGeometry(Part.LineSegment(App.Vector(-63, 82, 0), App.Vector(-63, 94, 0)), False)
sketch15.addGeometry(Part.LineSegment(App.Vector(-63, 184, 0), App.Vector(-72, 184, 0)), False)
sketch15.addGeometry(Part.LineSegment(App.Vector(-72, 184, 0), App.Vector(-72, 146, 0)), False)
sketch15.addGeometry(Part.LineSegment(App.Vector(-72, 146, 0), App.Vector(-63, 146, 0)), False)
sketch15.addGeometry(Part.LineSegment(App.Vector(-63, 146, 0), App.Vector(-63, 184, 0)), False)
sketch15.addConstraint(Sketcher.Constraint("Coincident", 0, 2, 1, 1))
sketch15.addConstraint(Sketcher.Constraint("Coincident", 1, 2, 2, 1))
sketch15.addConstraint(Sketcher.Constraint("Coincident", 2, 2, 3, 1))
sketch15.addConstraint(Sketcher.Constraint("Coincident", 3, 2, 0, 1))
sketch15.addConstraint(Sketcher.Constraint("Coincident", 4, 2, 5, 1))
sketch15.addConstraint(Sketcher.Constraint("Coincident", 5, 2, 6, 1))
sketch15.addConstraint(Sketcher.Constraint("Coincident", 6, 2, 7, 1))
sketch15.addConstraint(Sketcher.Constraint("Coincident", 7, 2, 4, 1))
sketch15.addConstraint(Sketcher.Constraint("Coincident", 8, 2, 9, 1))
sketch15.addConstraint(Sketcher.Constraint("Coincident", 9, 2, 10, 1))
sketch15.addConstraint(Sketcher.Constraint("Coincident", 10, 2, 11, 1))
sketch15.addConstraint(Sketcher.Constraint("Coincident", 11, 2, 8, 1))
sketch15.addConstraint(Sketcher.Constraint("Vertical", 0))
sketch15.addConstraint(Sketcher.Constraint("Vertical", 2))
sketch15.addConstraint(Sketcher.Constraint("Vertical", 5))
sketch15.addConstraint(Sketcher.Constraint("Horizontal", 8))
sketch15.addConstraint(Sketcher.Constraint("Vertical", 9))
sketch15.addConstraint(Sketcher.Constraint("Horizontal", 10))
sketch15.addConstraint(Sketcher.Constraint("Parallel", 1, 3))
sketch15.addConstraint(Sketcher.Constraint("Vertical", 3, 2, 4, 2))
sketch15.addConstraint(Sketcher.Constraint("Vertical", 5, 2, 8, 2))
sketch15.addConstraint(Sketcher.Constraint("Vertical", 2, 2, 11, 2))
sketch15.addConstraint(Sketcher.Constraint("Equal", 2, 5))
sketch15.addConstraint(Sketcher.Constraint("DistanceY", 0, 2, 0, 1, Q("0.5 in")))
sketch15.addConstraint(Sketcher.Constraint("DistanceY", 9, 2, 9, 1, Q("1.5 in")))
sketch15.addConstraint(Sketcher.Constraint("DistanceY", 4, 2, 0, 2, Q("5 in")))
sketch15.addConstraint(Sketcher.Constraint("Distance", 7, Q("0.5000002 in")))
sketch15.addConstraint(Sketcher.Constraint("Angle", 1, Q("37.2 deg")))
sketch15.addConstraint(Sketcher.Constraint("Angle", 4, Q("142.8 deg")))
sketch15.addConstraint(Sketcher.Constraint("DistanceX", 8, 2, 8, 1, Q("0.375 in")))
sketch15.addConstraint(Sketcher.Constraint("DistanceY", 8, 2, 0, 2, Q("1.75 in")))
sketch15.addConstraint(Sketcher.Constraint("DistanceX", 10, 1, 10, 2, 9.508678))
sketch15.addConstraint(Sketcher.Constraint("DistanceX", 7, 2, -1, 1, 62.68))
sketch15.addConstraint(Sketcher.Constraint("DistanceY", 6, 2, 5, 2, 7.1839))
sketch15.addConstraint(Sketcher.Constraint("DistanceX", 6, 2, -1, 1, 62.690881))
sketch15.addConstraint(Sketcher.Constraint("DistanceY", -1, 1, 0, 2, 228.547937))
sketch15.setExpression("Constraints[23]", "Params.sketch15_height")
sketch15.setExpression("Constraints[24]", "Params.sketch15_height2")
sketch15.setExpression("Constraints[26]", "Params.sketch15_length")
sketch15.setExpression("Constraints[29]", "Params.sketch15_width")
pocket6 = body7.newObject("PartDesign::Pocket", "Pocket005")
pocket6.Profile = sketch15
pocket6.Type = "TwoLengths"
pocket6.setExpression("Length", "Params.pocket6_length")
pocket6.setExpression("Length2", "Params.pocket6_length2")
body10 = doc.addObject("PartDesign::Body", "Body009")

sketch16 = body10.newObject("Sketcher::SketchObject", "Sketch015")
sketch16.AttachmentSupport = (doc.getObject("XZ_Plane009"), [""])
sketch16.MapMode = "FlatFace"
sketch16.AttachmentOffset = App.Placement(App.Vector(0, 0, -3 * 25.4), App.Rotation())
sketch16.addGeometry(Part.Circle(App.Vector(-25, 165, 0), App.Vector(0, 0, 1), 6), False)
sketch16.addConstraint(Sketcher.Constraint("Diameter", 0, Q("0.5 in")))
sketch16.addConstraint(Sketcher.Constraint("DistanceX", 0, 3, -1, 1, Q("1 in")))
sketch16.addConstraint(Sketcher.Constraint("DistanceY", -1, 1, 0, 3, Q("6.5 in")))
sketch16.setExpression("Constraints[0]", "Params.sketch16_diameter")
pad10 = body10.newObject("PartDesign::Pad", "Pad009")
pad10.Profile = sketch16
pad10.setExpression("Length", "Params.pad10_length")
pad10.Reversed = True
doc.recompute()

body11 = doc.addObject("PartDesign::Body", "Body010")
body11.BaseFeature = body10
boolean5 = body2.newObject("PartDesign::Boolean", "Boolean004")
boolean5.Type = "Cut"
boolean5.addObjects([body11])
doc.recompute()

boolean6 = body3.newObject("PartDesign::Boolean", "Boolean005")
boolean6.Type = "Cut"
boolean6.addObjects([body10])
body12 = doc.addObject("PartDesign::Body", "Body011")

sketch17 = body12.newObject("Sketcher::SketchObject", "Sketch016")
sketch17.AttachmentSupport = (doc.getObject("XZ_Plane011"), [""])
sketch17.MapMode = "FlatFace"
sketch17.addGeometry(Part.LineSegment(App.Vector(-235, 271, 0), App.Vector(-235, 0, 0)), False)
sketch17.addGeometry(Part.LineSegment(App.Vector(-235, 0, 0), App.Vector(-57, 0, 0)), False)
sketch17.addGeometry(Part.LineSegment(App.Vector(-57, 0, 0), App.Vector(-57, 271, 0)), False)
sketch17.addGeometry(Part.LineSegment(App.Vector(-57, 271, 0), App.Vector(-235, 271, 0)), False)
sketch17.addConstraint(Sketcher.Constraint("Coincident", 0, 2, 1, 1))
sketch17.addConstraint(Sketcher.Constraint("Coincident", 1, 2, 2, 1))
sketch17.addConstraint(Sketcher.Constraint("Coincident", 2, 2, 3, 1))
sketch17.addConstraint(Sketcher.Constraint("Coincident", 3, 2, 0, 1))
sketch17.addConstraint(Sketcher.Constraint("Vertical", 0))
sketch17.addConstraint(Sketcher.Constraint("Horizontal", 1))
sketch17.addConstraint(Sketcher.Constraint("Vertical", 2))
sketch17.addConstraint(Sketcher.Constraint("Horizontal", 3))
sketch17.addConstraint(Sketcher.Constraint("PointOnObject", 0, 2, -1))
sketch17.addConstraint(Sketcher.Constraint("DistanceX", 1, 1, 1, 2, Q("7 in")))
sketch17.addConstraint(Sketcher.Constraint("DistanceX", 0, 2, -1, 1, Q("9.25 in")))
sketch17.addConstraint(Sketcher.Constraint("DistanceY", 0, 2, 0, 1, 271.193057))
sketch17.setExpression("Constraints[9]", "Params.sketch17_width")
pad11 = body12.newObject("PartDesign::Pad", "Pad010")
pad11.Profile = sketch17
pad11.setExpression("Length", "Params.pad11_length")
pad11.Reversed = True
doc.recompute()

body13 = doc.addObject("PartDesign::Body", "Body012")
body13.BaseFeature = body12
boolean7 = body.newObject("PartDesign::Boolean", "Boolean006")
boolean7.Type = "Cut"
boolean7.addObjects([body13])
doc.recompute()

body14 = doc.addObject("PartDesign::Body", "Body013")
body14.BaseFeature = body12
boolean8 = body6.newObject("PartDesign::Boolean", "Boolean007")
boolean8.Type = "Cut"
boolean8.addObjects([body14])
doc.recompute()

boolean9 = body7.newObject("PartDesign::Boolean", "Boolean008")
boolean9.Type = "Cut"
boolean9.addObjects([body12])

doc.recompute()
